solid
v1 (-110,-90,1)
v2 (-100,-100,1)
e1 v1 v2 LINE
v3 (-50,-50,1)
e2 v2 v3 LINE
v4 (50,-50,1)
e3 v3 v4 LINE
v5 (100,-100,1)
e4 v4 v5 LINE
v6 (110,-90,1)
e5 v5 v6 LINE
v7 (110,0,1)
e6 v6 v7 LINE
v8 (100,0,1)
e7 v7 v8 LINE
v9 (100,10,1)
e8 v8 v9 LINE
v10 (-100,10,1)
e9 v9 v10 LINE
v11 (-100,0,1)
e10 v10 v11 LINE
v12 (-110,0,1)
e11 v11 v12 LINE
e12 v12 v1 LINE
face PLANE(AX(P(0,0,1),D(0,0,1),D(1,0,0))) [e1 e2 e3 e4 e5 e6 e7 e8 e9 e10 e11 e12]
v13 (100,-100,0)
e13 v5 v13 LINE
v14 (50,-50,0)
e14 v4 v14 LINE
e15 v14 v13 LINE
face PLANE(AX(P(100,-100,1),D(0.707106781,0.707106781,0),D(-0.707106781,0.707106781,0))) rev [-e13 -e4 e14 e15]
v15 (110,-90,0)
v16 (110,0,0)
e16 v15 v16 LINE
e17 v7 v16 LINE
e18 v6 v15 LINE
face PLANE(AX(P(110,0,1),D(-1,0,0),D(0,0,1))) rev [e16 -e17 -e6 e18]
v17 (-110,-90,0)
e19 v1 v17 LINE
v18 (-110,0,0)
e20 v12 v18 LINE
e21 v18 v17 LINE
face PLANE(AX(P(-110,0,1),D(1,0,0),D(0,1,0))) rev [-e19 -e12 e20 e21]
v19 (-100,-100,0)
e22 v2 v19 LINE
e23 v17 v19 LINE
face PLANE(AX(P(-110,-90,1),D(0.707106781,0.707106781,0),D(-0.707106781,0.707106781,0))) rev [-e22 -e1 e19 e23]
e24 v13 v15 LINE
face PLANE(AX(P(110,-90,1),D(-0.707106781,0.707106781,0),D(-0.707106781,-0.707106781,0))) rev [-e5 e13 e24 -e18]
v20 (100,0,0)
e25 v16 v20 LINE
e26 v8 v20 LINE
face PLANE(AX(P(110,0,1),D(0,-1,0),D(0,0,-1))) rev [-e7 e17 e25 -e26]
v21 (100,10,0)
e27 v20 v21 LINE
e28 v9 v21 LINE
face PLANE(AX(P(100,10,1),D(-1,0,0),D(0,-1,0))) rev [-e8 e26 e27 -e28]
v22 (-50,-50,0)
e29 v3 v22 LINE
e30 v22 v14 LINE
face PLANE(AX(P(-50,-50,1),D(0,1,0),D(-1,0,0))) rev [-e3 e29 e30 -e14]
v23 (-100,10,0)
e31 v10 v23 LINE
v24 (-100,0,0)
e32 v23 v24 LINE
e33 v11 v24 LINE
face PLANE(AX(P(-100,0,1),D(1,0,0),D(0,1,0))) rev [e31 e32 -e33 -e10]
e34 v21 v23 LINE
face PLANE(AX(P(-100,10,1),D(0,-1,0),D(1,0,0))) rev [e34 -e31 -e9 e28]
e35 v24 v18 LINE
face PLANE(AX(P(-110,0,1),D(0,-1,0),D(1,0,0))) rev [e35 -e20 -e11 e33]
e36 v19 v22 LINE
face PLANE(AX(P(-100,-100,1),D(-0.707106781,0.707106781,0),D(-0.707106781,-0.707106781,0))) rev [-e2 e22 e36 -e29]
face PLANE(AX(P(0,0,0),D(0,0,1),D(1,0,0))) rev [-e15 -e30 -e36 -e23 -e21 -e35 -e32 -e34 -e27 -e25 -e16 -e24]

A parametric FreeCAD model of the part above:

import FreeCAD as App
import Part
import Sketcher
Q = App.Units.Quantity


def add_polygon(sketch, points):
    """Adds a closed chain of lines whose ends are joined by coincident constraints."""
    first, n = sketch.GeometryCount, len(points)
    for a, b in zip(points, points[1:] + points[:1]):
        sketch.addGeometry(Part.LineSegment(App.Vector(*a, 0), App.Vector(*b, 0)), False)
    for i in range(n):
        sketch.addConstraint(Sketcher.Constraint("Coincident", first + i, 2, first + (i + 1) % n, 1))

doc = App.newDocument("Part")
body = doc.addObject("PartDesign::Body", "Body")

sketch1 = body.newObject("Sketcher::SketchObject", "Sketch")
sketch1.AttachmentSupport = (doc.getObject("XY_Plane"), [""])
sketch1.MapMode = "FlatFace"
add_polygon(sketch1, [(110, 0), (100, 0), (100, 10), (-100, 10), (-100, 0), (-110, 0), (-110, -90), (-100, -100), (-50, -50), (50, -50), (100, -100), (110, -90)])
sketch1.addConstraint([
    Sketcher.Constraint("Horizontal", 0),
    Sketcher.Constraint("Vertical", 1),
    Sketcher.Constraint("Horizontal", 2),
    Sketcher.Constraint("Vertical", 3),
    Sketcher.Constraint("Horizontal", 4),
    Sketcher.Constraint("Vertical", 5),
    Sketcher.Constraint("Horizontal", 8),
    Sketcher.Constraint("Vertical", 11),
    Sketcher.Constraint("Symmetric", 0, 2, 3, 2, -1, 1),
    Sketcher.Constraint("Symmetric", 6, 2, 9, 2, -2),
    Sketcher.Constraint("Symmetric", 5, 2, 10, 2, -2),
    Sketcher.Constraint("PointOnObject", 0, 2, -1),
    Sketcher.Constraint("Perpendicular", 6, 7),
    Sketcher.Constraint("Perpendicular", 7, 9),
    Sketcher.Constraint("Perpendicular", 9, 10),
    Sketcher.Constraint("Vertical", 3, 2, 6, 2),
    Sketcher.Constraint("Equal", 4, 1),
    Sketcher.Constraint("DistanceX", 0, 2, 0, 1, Q("10 mm")),
    Sketcher.Constraint("DistanceX", 2, 2, 2, 1, Q("200 mm")),
    Sketcher.Constraint("DistanceX", 8, 1, 8, 2, Q("100 mm")),
    Sketcher.Constraint("DistanceY", 5, 2, 5, 1, Q("90 mm")),
])
pad1 = body.newObject("PartDesign::Pad", "Pad")
pad1.Profile = sketch1
pad1.Length = 1

doc.recompute()
